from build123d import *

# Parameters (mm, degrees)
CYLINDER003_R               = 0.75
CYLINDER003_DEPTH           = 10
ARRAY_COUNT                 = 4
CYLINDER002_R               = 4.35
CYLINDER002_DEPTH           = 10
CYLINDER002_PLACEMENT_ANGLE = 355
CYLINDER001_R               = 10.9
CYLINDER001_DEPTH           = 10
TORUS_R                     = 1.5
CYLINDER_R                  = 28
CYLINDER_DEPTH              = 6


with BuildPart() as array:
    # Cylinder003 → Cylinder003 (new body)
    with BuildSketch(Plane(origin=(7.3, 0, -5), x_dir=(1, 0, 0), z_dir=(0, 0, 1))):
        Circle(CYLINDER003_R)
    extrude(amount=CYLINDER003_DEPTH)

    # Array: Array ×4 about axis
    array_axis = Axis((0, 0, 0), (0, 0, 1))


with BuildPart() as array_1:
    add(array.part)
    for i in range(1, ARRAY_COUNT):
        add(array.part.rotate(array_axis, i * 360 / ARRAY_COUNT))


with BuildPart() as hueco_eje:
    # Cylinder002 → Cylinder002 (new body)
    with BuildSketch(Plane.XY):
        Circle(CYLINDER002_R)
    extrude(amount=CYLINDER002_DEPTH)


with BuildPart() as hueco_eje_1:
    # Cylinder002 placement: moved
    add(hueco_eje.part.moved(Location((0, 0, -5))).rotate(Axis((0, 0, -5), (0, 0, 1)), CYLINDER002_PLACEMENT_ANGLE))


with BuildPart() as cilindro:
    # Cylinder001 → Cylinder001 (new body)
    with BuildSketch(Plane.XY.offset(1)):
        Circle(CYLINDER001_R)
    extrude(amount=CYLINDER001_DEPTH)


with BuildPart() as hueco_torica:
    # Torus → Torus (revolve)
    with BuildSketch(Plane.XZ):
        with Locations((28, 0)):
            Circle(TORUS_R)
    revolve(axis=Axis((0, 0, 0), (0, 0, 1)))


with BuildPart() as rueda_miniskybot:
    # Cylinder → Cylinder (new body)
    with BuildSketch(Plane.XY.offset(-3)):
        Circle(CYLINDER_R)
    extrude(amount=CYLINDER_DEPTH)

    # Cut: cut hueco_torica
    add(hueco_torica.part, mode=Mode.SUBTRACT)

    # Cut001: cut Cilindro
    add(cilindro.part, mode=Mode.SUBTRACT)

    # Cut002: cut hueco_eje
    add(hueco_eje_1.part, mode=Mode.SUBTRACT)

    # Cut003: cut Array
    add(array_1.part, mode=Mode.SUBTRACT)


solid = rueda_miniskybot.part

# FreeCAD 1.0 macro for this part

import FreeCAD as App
import Part
import Sketcher
from FreeCAD import Vector
Q = App.Units.Quantity

doc = App.newDocument("Part")
body = doc.addObject("PartDesign::Body", "Body")

# Sketch on XY plane
sketch1 = body.newObject("Sketcher::SketchObject", "Sketch")
sketch1.AttachmentSupport = (doc.getObject("XY_Plane"), [""])
sketch1.MapMode = "FlatFace"
sketch1.AttachmentOffset = App.Placement(Vector(0, 0, -5), App.Rotation())
sketch1.addGeometry(Part.Circle(Vector(7.3, 0, 0), Vector(0, 0, 1), 0.75), False)
sketch1.addConstraint(Sketcher.Constraint("PointOnObject", 0, 3, -1))
sketch1.addConstraint(Sketcher.Constraint("Diameter", 0, Q("1.5 mm")))
sketch1.addConstraint(Sketcher.Constraint("DistanceX", -1, 1, 0, 3, Q("7.3 mm")))
pad1 = body.newObject("PartDesign::Pad", "Pad")
pad1.Profile = sketch1
pad1.Length = 10
body2 = doc.addObject("PartDesign::Body", "Body001")
body2.AllowCompound = True
doc.recompute()

body2.BaseFeature = body
doc.recompute()

body3 = doc.addObject("PartDesign::Body", "Body002")
body3.BaseFeature = body
body3.Placement = App.Placement(Vector(0, 0, 0), App.Rotation(Vector(0, 0, 1), 90))
boolean = body2.newObject("PartDesign::Boolean", "Boolean")
boolean.Type = "Fuse"
boolean.addObjects([body3])
doc.recompute()

body4 = doc.addObject("PartDesign::Body", "Body003")
body4.BaseFeature = body
body4.Placement = App.Placement(Vector(0, 0, 0), App.Rotation(Vector(0, 0, 1), 180))
boolean2 = body2.newObject("PartDesign::Boolean", "Boolean001")
boolean2.Type = "Fuse"
boolean2.addObjects([body4])
doc.recompute()

body.Placement = App.Placement(Vector(0, 0, 0), App.Rotation(Vector(0, 0, 1), 270))
boolean3 = body2.newObject("PartDesign::Boolean", "Boolean002")
boolean3.Type = "Fuse"
boolean3.addObjects([body])
body5 = doc.addObject("PartDesign::Body", "Body004")

# Sketch on XY plane
sketch2 = body5.newObject("Sketcher::SketchObject", "Sketch001")
sketch2.AttachmentSupport = (doc.getObject("XY_Plane004"), [""])
sketch2.MapMode = "FlatFace"
sketch2.addGeometry(Part.Circle(Vector(0, 0, 0), Vector(0, 0, 1), 4.35), False)
sketch2.addConstraint(Sketcher.Constraint("Coincident", 0, 3, -1, 1))
sketch2.addConstraint(Sketcher.Constraint("Diameter", 0, Q("8.7 mm")))
pad2 = body5.newObject("PartDesign::Pad", "Pad001")
pad2.Profile = sketch2
pad2.Length = 10
body6 = doc.addObject("PartDesign::Body", "Body005")
doc.recompute()

body5.Placement = App.Placement(Vector(0, 0, -5), App.Rotation(Vector(0, 0, 1), 355))
boolean4 = body6.newObject("PartDesign::Boolean", "Boolean003")
boolean4.Type = "Fuse"
boolean4.addObjects([body5])
body7 = doc.addObject("PartDesign::Body", "Body006")

# Sketch on XY plane
sketch3 = body7.newObject("Sketcher::SketchObject", "Sketch002")
sketch3.AttachmentSupport = (doc.getObject("XY_Plane006"), [""])
sketch3.MapMode = "FlatFace"
sketch3.AttachmentOffset = App.Placement(Vector(0, 0, 1), App.Rotation())
sketch3.addGeometry(Part.Circle(Vector(0, 0, 0), Vector(0, 0, 1), 10.9), False)
sketch3.addConstraint(Sketcher.Constraint("Coincident", 0, 3, -1, 1))
sketch3.addConstraint(Sketcher.Constraint("Diameter", 0, Q("21.8 mm")))
pad3 = body7.newObject("PartDesign::Pad", "Pad002")
pad3.Profile = sketch3
pad3.Length = 10
body8 = doc.addObject("PartDesign::Body", "Body007")

# Sketch on XZ plane
sketch4 = body8.newObject("Sketcher::SketchObject", "Sketch003")
sketch4.AttachmentSupport = (doc.getObject("XZ_Plane007"), [""])
sketch4.MapMode = "FlatFace"
sketch4.addGeometry(Part.Circle(Vector(28, 0, 0), Vector(0, 0, 1), 1.5), False)
sketch4.addConstraint(Sketcher.Constraint("PointOnObject", 0, 3, -1))
sketch4.addConstraint(Sketcher.Constraint("Diameter", 0, Q("3 mm")))
sketch4.addConstraint(Sketcher.Constraint("DistanceX", -1, 1, 0, 3, Q("28 mm")))
revolution = body8.newObject("PartDesign::Revolution", "Revolution")
revolution.Profile = sketch4
revolution.ReferenceAxis = (sketch4, ["V_Axis"])
revolution.Angle = 360
body9 = doc.addObject("PartDesign::Body", "Body008")

# Sketch on XY plane
sketch5 = body9.newObject("Sketcher::SketchObject", "Sketch004")
sketch5.AttachmentSupport = (doc.getObject("XY_Plane008"), [""])
sketch5.MapMode = "FlatFace"
sketch5.AttachmentOffset = App.Placement(Vector(0, 0, -3), App.Rotation())
sketch5.addGeometry(Part.Circle(Vector(0, 0, 0), Vector(0, 0, 1), 28), False)
sketch5.addConstraint(Sketcher.Constraint("Coincident", 0, 3, -1, 1))
sketch5.addConstraint(Sketcher.Constraint("Diameter", 0, Q("56 mm")))
pad4 = body9.newObject("PartDesign::Pad", "Pad003")
pad4.Profile = sketch5
pad4.Length = 6
doc.recompute()

boolean5 = body9.newObject("PartDesign::Boolean", "Boolean004")
boolean5.Type = "Cut"
boolean5.addObjects([body8])
doc.recompute()

boolean6 = body9.newObject("PartDesign::Boolean", "Boolean005")
boolean6.Type = "Cut"
boolean6.addObjects([body7])
doc.recompute()

boolean7 = body9.newObject("PartDesign::Boolean", "Boolean006")
boolean7.Type = "Cut"
boolean7.addObjects([body6])
doc.recompute()

boolean8 = body9.newObject("PartDesign::Boolean", "Boolean007")
boolean8.Type = "Cut"
boolean8.addObjects([body2])

doc.recompute()
